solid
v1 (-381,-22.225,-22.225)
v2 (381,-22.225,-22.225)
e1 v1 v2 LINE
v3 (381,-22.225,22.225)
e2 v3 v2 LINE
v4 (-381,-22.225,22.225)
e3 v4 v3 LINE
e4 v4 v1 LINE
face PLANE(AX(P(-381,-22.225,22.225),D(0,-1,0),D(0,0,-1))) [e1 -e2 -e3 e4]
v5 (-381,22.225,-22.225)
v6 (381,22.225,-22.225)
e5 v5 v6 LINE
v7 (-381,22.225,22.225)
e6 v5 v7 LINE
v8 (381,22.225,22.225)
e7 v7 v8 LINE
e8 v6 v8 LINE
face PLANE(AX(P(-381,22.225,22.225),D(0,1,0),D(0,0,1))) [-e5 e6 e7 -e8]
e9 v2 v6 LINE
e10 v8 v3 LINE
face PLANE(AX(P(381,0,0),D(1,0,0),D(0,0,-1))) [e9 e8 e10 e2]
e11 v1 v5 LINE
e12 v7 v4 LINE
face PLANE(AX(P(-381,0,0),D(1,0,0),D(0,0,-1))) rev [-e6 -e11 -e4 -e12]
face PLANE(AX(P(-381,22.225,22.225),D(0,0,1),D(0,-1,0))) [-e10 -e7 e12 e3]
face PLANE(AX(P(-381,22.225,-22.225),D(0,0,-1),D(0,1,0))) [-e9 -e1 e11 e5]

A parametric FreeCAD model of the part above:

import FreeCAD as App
import Part
import Sketcher
Q = App.Units.Quantity


def add_polygon(sketch, points):
    """Adds a closed chain of lines whose ends are joined by coincident constraints."""
    first, n = sketch.GeometryCount, len(points)
    for a, b in zip(points, points[1:] + points[:1]):
        sketch.addGeometry(Part.LineSegment(App.Vector(*a, 0), App.Vector(*b, 0)), False)
    for i in range(n):
        sketch.addConstraint(Sketcher.Constraint("Coincident", first + i, 2, first + (i + 1) % n, 1))

doc = App.newDocument("Part")
body = doc.addObject("PartDesign::Body", "Body")

# Sketch on YZ plane
sketch1 = body.newObject("Sketcher::SketchObject", "Sketch")
sketch1.AttachmentSupport = (doc.getObject("YZ_Plane"), [""])
sketch1.MapMode = "FlatFace"
add_polygon(sketch1, [(22.225, 22.225), (-22.225, 22.225), (-22.225, -22.225), (22.225, -22.225)])  # lines 0-3
sketch1.addConstraint(Sketcher.Constraint("Horizontal", 0))
sketch1.addConstraint(Sketcher.Constraint("Vertical", 1))
sketch1.addConstraint(Sketcher.Constraint("Horizontal", 2))
sketch1.addConstraint(Sketcher.Constraint("Vertical", 3))
sketch1.addConstraint(Sketcher.Constraint("Symmetric", 0, 2, 2, 2, -1, 1))
sketch1.addConstraint(Sketcher.Constraint("Equal", 2, 1))
sketch1.addConstraint(Sketcher.Constraint("DistanceX", 0, 2, 0, 1, Q("1.75 in")))
pad1 = body.newObject("PartDesign::Pad", "Pad")
pad1.Profile = sketch1
pad1.Type = "TwoLengths"
pad1.Length = Q("15 in")
pad1.Length2 = Q("15 in")

doc.recompute()
